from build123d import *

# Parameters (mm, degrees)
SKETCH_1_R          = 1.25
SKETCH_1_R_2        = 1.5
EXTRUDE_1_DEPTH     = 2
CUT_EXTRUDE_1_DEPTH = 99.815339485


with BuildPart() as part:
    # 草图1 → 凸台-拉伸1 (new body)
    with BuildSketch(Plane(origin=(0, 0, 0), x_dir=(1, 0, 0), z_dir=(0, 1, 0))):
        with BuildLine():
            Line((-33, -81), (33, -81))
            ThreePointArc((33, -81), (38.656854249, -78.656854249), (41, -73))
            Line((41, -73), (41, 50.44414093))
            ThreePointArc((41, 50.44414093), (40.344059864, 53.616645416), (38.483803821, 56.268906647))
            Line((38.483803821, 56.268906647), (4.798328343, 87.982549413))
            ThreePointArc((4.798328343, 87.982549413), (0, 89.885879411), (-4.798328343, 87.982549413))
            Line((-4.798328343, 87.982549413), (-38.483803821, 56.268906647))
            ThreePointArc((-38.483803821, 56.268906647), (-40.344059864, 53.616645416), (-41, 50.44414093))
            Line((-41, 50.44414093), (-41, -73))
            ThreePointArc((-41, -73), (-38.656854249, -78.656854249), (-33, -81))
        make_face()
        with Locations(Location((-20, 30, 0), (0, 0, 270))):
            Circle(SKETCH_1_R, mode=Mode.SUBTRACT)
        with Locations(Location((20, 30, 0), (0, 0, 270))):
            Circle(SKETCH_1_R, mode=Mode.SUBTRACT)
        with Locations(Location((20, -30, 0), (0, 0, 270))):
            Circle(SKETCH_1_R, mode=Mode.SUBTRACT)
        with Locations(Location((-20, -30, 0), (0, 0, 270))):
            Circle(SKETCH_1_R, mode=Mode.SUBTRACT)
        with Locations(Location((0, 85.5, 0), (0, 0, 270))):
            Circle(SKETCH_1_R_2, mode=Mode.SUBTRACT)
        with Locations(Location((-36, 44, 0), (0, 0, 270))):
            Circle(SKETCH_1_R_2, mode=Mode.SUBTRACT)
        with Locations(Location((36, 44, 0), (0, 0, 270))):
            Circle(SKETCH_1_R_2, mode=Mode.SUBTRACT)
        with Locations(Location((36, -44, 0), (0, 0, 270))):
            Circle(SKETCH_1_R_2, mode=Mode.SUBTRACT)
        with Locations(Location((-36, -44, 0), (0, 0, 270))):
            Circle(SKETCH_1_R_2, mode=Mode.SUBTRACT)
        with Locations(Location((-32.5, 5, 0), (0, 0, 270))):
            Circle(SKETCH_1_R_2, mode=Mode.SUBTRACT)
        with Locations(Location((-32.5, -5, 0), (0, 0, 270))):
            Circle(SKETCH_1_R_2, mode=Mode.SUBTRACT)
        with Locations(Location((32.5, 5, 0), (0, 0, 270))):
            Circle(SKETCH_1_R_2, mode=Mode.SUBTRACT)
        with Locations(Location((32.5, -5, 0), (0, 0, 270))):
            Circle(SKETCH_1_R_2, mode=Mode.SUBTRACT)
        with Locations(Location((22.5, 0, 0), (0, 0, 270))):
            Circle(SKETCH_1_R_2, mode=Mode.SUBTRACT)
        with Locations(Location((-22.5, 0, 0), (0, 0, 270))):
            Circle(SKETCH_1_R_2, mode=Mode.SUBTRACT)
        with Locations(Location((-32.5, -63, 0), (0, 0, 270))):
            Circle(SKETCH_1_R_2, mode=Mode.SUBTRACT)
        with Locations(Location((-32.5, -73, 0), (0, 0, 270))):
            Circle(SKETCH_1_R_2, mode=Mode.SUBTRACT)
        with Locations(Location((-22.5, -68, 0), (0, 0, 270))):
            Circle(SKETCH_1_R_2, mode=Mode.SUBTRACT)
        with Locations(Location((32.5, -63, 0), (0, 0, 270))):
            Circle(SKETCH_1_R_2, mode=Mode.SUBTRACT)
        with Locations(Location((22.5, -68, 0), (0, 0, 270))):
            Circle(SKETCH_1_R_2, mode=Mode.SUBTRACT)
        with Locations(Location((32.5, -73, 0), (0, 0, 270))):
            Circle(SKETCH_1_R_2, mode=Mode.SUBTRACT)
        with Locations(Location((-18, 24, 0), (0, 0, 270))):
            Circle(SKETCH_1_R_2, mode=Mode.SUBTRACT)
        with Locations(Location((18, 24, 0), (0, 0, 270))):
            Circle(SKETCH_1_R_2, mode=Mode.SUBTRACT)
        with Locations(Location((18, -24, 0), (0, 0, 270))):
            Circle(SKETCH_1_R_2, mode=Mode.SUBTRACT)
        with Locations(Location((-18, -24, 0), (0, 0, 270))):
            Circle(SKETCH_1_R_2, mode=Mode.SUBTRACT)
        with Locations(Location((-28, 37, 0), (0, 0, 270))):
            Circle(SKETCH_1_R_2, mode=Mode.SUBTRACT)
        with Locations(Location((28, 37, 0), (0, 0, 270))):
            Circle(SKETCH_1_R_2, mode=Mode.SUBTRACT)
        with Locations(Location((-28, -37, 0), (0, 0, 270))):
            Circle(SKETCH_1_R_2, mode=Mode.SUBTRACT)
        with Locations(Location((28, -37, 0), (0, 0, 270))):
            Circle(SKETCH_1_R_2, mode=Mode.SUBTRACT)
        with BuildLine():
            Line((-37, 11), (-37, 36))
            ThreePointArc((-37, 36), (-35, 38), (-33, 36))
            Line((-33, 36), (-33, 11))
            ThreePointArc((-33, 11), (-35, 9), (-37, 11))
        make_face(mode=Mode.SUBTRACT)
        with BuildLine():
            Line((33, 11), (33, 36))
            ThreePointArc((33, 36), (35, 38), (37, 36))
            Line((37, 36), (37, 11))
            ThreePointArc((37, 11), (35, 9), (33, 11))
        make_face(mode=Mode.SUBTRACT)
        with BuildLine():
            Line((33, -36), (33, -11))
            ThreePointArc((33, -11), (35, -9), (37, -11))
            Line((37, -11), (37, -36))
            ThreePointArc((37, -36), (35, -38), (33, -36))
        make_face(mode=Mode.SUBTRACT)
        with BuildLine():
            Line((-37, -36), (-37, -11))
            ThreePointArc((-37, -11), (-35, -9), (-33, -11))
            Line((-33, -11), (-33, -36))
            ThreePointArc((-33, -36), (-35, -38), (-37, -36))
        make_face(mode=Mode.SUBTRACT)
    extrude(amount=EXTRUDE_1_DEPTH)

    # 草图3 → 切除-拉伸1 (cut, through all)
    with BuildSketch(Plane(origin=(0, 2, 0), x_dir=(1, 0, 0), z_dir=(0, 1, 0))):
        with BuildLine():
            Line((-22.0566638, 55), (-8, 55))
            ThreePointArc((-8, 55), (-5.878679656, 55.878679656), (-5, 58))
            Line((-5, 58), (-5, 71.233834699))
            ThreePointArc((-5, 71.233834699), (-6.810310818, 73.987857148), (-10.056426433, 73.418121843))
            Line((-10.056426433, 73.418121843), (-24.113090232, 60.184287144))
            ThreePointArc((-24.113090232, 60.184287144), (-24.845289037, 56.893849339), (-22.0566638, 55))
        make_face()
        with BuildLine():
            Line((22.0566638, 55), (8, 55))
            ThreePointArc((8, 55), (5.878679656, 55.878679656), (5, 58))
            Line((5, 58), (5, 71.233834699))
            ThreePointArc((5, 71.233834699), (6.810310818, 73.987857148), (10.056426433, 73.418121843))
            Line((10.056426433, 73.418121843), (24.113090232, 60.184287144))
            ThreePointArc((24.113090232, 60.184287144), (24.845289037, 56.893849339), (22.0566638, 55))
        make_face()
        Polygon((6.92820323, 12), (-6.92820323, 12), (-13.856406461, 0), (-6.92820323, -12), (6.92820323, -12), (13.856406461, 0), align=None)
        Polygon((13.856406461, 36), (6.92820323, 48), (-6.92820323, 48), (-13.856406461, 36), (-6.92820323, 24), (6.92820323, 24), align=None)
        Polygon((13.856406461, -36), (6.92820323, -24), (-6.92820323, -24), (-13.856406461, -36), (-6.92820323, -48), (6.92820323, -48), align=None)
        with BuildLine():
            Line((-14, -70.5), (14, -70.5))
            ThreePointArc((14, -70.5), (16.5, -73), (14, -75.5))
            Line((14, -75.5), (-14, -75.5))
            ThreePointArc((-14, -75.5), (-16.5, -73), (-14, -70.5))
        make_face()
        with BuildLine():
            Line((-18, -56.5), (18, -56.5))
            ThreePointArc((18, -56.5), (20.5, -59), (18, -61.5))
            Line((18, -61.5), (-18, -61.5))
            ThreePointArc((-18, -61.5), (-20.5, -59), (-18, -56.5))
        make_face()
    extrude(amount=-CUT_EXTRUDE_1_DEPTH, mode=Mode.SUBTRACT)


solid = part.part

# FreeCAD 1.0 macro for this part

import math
import FreeCAD as App
import Part
import Sketcher
from FreeCAD import Vector
Q = App.Units.Quantity


def add_polygon(sketch, points):
    """Adds a closed chain of lines whose ends are joined by coincident constraints."""
    first, n = sketch.GeometryCount, len(points)
    for a, b in zip(points, points[1:] + points[:1]):
        sketch.addGeometry(Part.LineSegment(App.Vector(*a, 0), App.Vector(*b, 0)), False)
    for i in range(n):
        sketch.addConstraint(Sketcher.Constraint("Coincident", first + i, 2, first + (i + 1) % n, 1))

doc = App.newDocument("Part")
body = doc.addObject("PartDesign::Body", "Body")

sketch1 = body.newObject("Sketcher::SketchObject", "Sketch")
sketch1.AttachmentSupport = (doc.getObject("XZ_Plane"), [""])
sketch1.MapMode = "FlatFace"
sketch1.addGeometry([
    Part.LineSegment(Vector(-33, 81, 0), Vector(33, 81, 0)),
    Part.ArcOfCircle(Part.Circle(Vector(33, 73, 0), Vector(0, 0, 1), 8), math.radians(0), math.radians(90)),
    Part.LineSegment(Vector(41, 73, 0), Vector(41, -50.4, 0)),
    Part.ArcOfCircle(Part.Circle(Vector(33, -50.4, 0), Vector(0, 0, 1), 8), math.radians(-47), math.radians(0)),
    Part.LineSegment(Vector(38.5, -56.3, 0), Vector(4.8, -88, 0)),
    Part.ArcOfCircle(Part.Circle(Vector(0, -82.9, 0), Vector(0, 0, 1), 7), math.radians(-133), math.radians(-47)),
    Part.LineSegment(Vector(-4.8, -88, 0), Vector(-38.5, -56.3, 0)),
    Part.ArcOfCircle(Part.Circle(Vector(-33, -50.4, 0), Vector(0, 0, 1), 8), math.radians(180), math.radians(227)),
    Part.LineSegment(Vector(-41, -50.4, 0), Vector(-41, 73, 0)),
    Part.ArcOfCircle(Part.Circle(Vector(-33, 73, 0), Vector(0, 0, 1), 8), math.radians(90), math.radians(180)),
    Part.Circle(Vector(-32.5, 73, 0), Vector(0, 0, 1), 1.5),
    Part.Circle(Vector(-32.5, 63, 0), Vector(0, 0, 1), 1.5),
    Part.Circle(Vector(-22.5, 68, 0), Vector(0, 0, 1), 1.5),
    Part.Circle(Vector(-36, 44, 0), Vector(0, 0, 1), 1.5),
    Part.Circle(Vector(-28, 37, 0), Vector(0, 0, 1), 1.5),
    Part.ArcOfCircle(Part.Circle(Vector(-35, 36, 0), Vector(0, 0, 1), 2), math.radians(0), math.radians(180)),
    Part.LineSegment(Vector(-37, 36, 0), Vector(-37, 11, 0)),
    Part.ArcOfCircle(Part.Circle(Vector(-35, 11, 0), Vector(0, 0, 1), 2), math.radians(180), math.radians(360)),
    Part.LineSegment(Vector(-33, 11, 0), Vector(-33, 36, 0)),
    Part.Circle(Vector(-20, 30, 0), Vector(0, 0, 1), 1.2),
    Part.Circle(Vector(-32.5, 5, 0), Vector(0, 0, 1), 1.5),
    Part.Circle(Vector(-32.5, -5, 0), Vector(0, 0, 1), 1.5),
    Part.Circle(Vector(-22.5, 0, 0), Vector(0, 0, 1), 1.5),
    Part.Circle(Vector(-18, 24, 0), Vector(0, 0, 1), 1.5),
    Part.Circle(Vector(22.5, 68, 0), Vector(0, 0, 1), 1.5),
    Part.Circle(Vector(32.5, 73, 0), Vector(0, 0, 1), 1.5),
    Part.Circle(Vector(32.5, 63, 0), Vector(0, 0, 1), 1.5),
    Part.Circle(Vector(28, 37, 0), Vector(0, 0, 1), 1.5),
    Part.Circle(Vector(36, 44, 0), Vector(0, 0, 1), 1.5),
    Part.Circle(Vector(18, 24, 0), Vector(0, 0, 1), 1.5),
    Part.Circle(Vector(20, 30, 0), Vector(0, 0, 1), 1.2),
    Part.ArcOfCircle(Part.Circle(Vector(35, 36, 0), Vector(0, 0, 1), 2), math.radians(0), math.radians(180)),
    Part.LineSegment(Vector(33, 36, 0), Vector(33, 11, 0)),
    Part.ArcOfCircle(Part.Circle(Vector(35, 11, 0), Vector(0, 0, 1), 2), math.radians(180), math.radians(360)),
    Part.LineSegment(Vector(37, 11, 0), Vector(37, 36, 0)),
    Part.Circle(Vector(22.5, 0, 0), Vector(0, 0, 1), 1.5),
    Part.Circle(Vector(32.5, 5, 0), Vector(0, 0, 1), 1.5),
    Part.Circle(Vector(32.5, -5, 0), Vector(0, 0, 1), 1.5),
    Part.ArcOfCircle(Part.Circle(Vector(-35, -11, 0), Vector(0, 0, 1), 2), math.radians(0), math.radians(180)),
    Part.LineSegment(Vector(-37, -11, 0), Vector(-37, -36, 0)),
    Part.ArcOfCircle(Part.Circle(Vector(-35, -36, 0), Vector(0, 0, 1), 2), math.radians(180), math.radians(360)),
    Part.LineSegment(Vector(-33, -36, 0), Vector(-33, -11, 0)),
    Part.Circle(Vector(-36, -44, 0), Vector(0, 0, 1), 1.5),
    Part.Circle(Vector(-20, -30, 0), Vector(0, 0, 1), 1.2),
    Part.Circle(Vector(-28, -37, 0), Vector(0, 0, 1), 1.5),
    Part.Circle(Vector(-18, -24, 0), Vector(0, 0, 1), 1.5),
    Part.Circle(Vector(18, -24, 0), Vector(0, 0, 1), 1.5),
    Part.ArcOfCircle(Part.Circle(Vector(35, -11, 0), Vector(0, 0, 1), 2), math.radians(0), math.radians(180)),
    Part.LineSegment(Vector(33, -11, 0), Vector(33, -36, 0)),
    Part.ArcOfCircle(Part.Circle(Vector(35, -36, 0), Vector(0, 0, 1), 2), math.radians(180), math.radians(360)),
    Part.LineSegment(Vector(37, -36, 0), Vector(37, -11, 0)),
    Part.Circle(Vector(20, -30, 0), Vector(0, 0, 1), 1.2),
    Part.Circle(Vector(28, -37, 0), Vector(0, 0, 1), 1.5),
    Part.Circle(Vector(36, -44, 0), Vector(0, 0, 1), 1.5),
    Part.Circle(Vector(0, -85.5, 0), Vector(0, 0, 1), 1.5),
], False)
sketch1.addConstraint([
    Sketcher.Constraint("Tangent", 0, 2, 1, 2),
    Sketcher.Constraint("Tangent", 1, 1, 2, 1),
    Sketcher.Constraint("Tangent", 2, 2, 3, 2),
    Sketcher.Constraint("Tangent", 3, 1, 4, 1),
    Sketcher.Constraint("Tangent", 4, 2, 5, 2),
    Sketcher.Constraint("Tangent", 5, 1, 6, 1),
    Sketcher.Constraint("Tangent", 6, 2, 7, 2),
    Sketcher.Constraint("Tangent", 7, 1, 8, 1),
    Sketcher.Constraint("Tangent", 8, 2, 9, 2),
    Sketcher.Constraint("Tangent", 9, 1, 0, 1),
    Sketcher.Constraint("Tangent", 15, 2, 16, 1),
    Sketcher.Constraint("Tangent", 16, 2, 17, 1),
    Sketcher.Constraint("Tangent", 17, 2, 18, 1),
    Sketcher.Constraint("Tangent", 18, 2, 15, 1),
    Sketcher.Constraint("Tangent", 31, 2, 32, 1),
    Sketcher.Constraint("Tangent", 32, 2, 33, 1),
    Sketcher.Constraint("Tangent", 33, 2, 34, 1),
    Sketcher.Constraint("Tangent", 34, 2, 31, 1),
    Sketcher.Constraint("Tangent", 38, 2, 39, 1),
    Sketcher.Constraint("Tangent", 39, 2, 40, 1),
    Sketcher.Constraint("Tangent", 40, 2, 41, 1),
    Sketcher.Constraint("Tangent", 41, 2, 38, 1),
    Sketcher.Constraint("Tangent", 47, 2, 48, 1),
    Sketcher.Constraint("Tangent", 48, 2, 49, 1),
    Sketcher.Constraint("Tangent", 49, 2, 50, 1),
    Sketcher.Constraint("Tangent", 50, 2, 47, 1),
    Sketcher.Constraint("Horizontal", 0),
    Sketcher.Constraint("Vertical", 2),
    Sketcher.Constraint("Vertical", 8),
    Sketcher.Constraint("Vertical", 16),
    Sketcher.Constraint("Vertical", 18),
    Sketcher.Constraint("Vertical", 32),
    Sketcher.Constraint("Vertical", 34),
    Sketcher.Constraint("Vertical", 39),
    Sketcher.Constraint("Vertical", 41),
    Sketcher.Constraint("Vertical", 48),
    Sketcher.Constraint("Vertical", 50),
    Sketcher.Constraint("Equal", 1, 3),
    Sketcher.Constraint("Equal", 3, 7),
    Sketcher.Constraint("Equal", 7, 9),
    Sketcher.Constraint("Equal", 10, 11),
    Sketcher.Constraint("Equal", 11, 12),
    Sketcher.Constraint("Equal", 12, 13),
    Sketcher.Constraint("Equal", 13, 14),
    Sketcher.Constraint("Equal", 14, 20),
    Sketcher.Constraint("Equal", 20, 21),
    Sketcher.Constraint("Equal", 21, 22),
    Sketcher.Constraint("Equal", 22, 23),
    Sketcher.Constraint("Equal", 23, 24),
    Sketcher.Constraint("Equal", 24, 25),
    Sketcher.Constraint("Equal", 25, 26),
    Sketcher.Constraint("Equal", 26, 27),
    Sketcher.Constraint("Equal", 27, 28),
    Sketcher.Constraint("Equal", 28, 29),
    Sketcher.Constraint("Equal", 19, 30),
    Sketcher.Constraint("Equal", 17, 31),
    Sketcher.Constraint("Equal", 29, 35),
    Sketcher.Constraint("Equal", 35, 36),
    Sketcher.Constraint("Equal", 36, 37),
    Sketcher.Constraint("Equal", 33, 38),
    Sketcher.Constraint("Equal", 37, 42),
    Sketcher.Constraint("Equal", 30, 43),
    Sketcher.Constraint("Equal", 42, 44),
    Sketcher.Constraint("Equal", 44, 45),
    Sketcher.Constraint("Equal", 45, 46),
    Sketcher.Constraint("Equal", 40, 47),
    Sketcher.Constraint("Equal", 43, 51),
    Sketcher.Constraint("Equal", 46, 52),
    Sketcher.Constraint("Equal", 52, 53),
    Sketcher.Constraint("Equal", 53, 54),
    Sketcher.Constraint("Symmetric", 22, 3, 35, 3, -1, 1),
    Sketcher.Constraint("Symmetric", 21, 3, 36, 3, -1, 1),
    Sketcher.Constraint("Symmetric", 20, 3, 37, 3, -1, 1),
    Sketcher.Constraint("Symmetric", 33, 3, 38, 3, -1, 1),
    Sketcher.Constraint("Symmetric", 28, 3, 42, 3, -1, 1),
    Sketcher.Constraint("Symmetric", 30, 3, 43, 3, -1, 1),
    Sketcher.Constraint("Symmetric", 27, 3, 44, 3, -1, 1),
    Sketcher.Constraint("Symmetric", 29, 3, 45, 3, -1, 1),
    Sketcher.Constraint("Symmetric", 23, 3, 46, 3, -1, 1),
    Sketcher.Constraint("Symmetric", 17, 3, 47, 3, -1, 1),
    Sketcher.Constraint("Symmetric", 19, 3, 51, 3, -1, 1),
    Sketcher.Constraint("Symmetric", 14, 3, 52, 3, -1, 1),
    Sketcher.Constraint("Symmetric", 13, 3, 53, 3, -1, 1),
    Sketcher.Constraint("Symmetric", 3, 3, 7, 3, -2),
    Sketcher.Constraint("Symmetric", 12, 3, 24, 3, -2),
    Sketcher.Constraint("Symmetric", 10, 3, 25, 3, -2),
    Sketcher.Constraint("Symmetric", 11, 3, 26, 3, -2),
    Sketcher.Constraint("Symmetric", 14, 3, 27, 3, -2),
    Sketcher.Constraint("Symmetric", 13, 3, 28, 3, -2),
    Sketcher.Constraint("Symmetric", 23, 3, 29, 3, -2),
    Sketcher.Constraint("Symmetric", 19, 3, 30, 3, -2),
    Sketcher.Constraint("Symmetric", 15, 3, 31, 3, -2),
    Sketcher.Constraint("Symmetric", 20, 3, 36, 3, -2),
    Sketcher.Constraint("PointOnObject", 5, 3, -2),
    Sketcher.Constraint("PointOnObject", 22, 3, -1),
    Sketcher.Constraint("PointOnObject", 54, 3, -2),
    Sketcher.Constraint("Horizontal", 9, 3, 10, 3),
    Sketcher.Constraint("Horizontal", 17, 3, 33, 3),
    Sketcher.Constraint("Horizontal", 40, 3, 49, 3),
    Sketcher.Constraint("Vertical", 10, 3, 11, 3),
    Sketcher.Constraint("Vertical", 11, 3, 20, 3),
    Sketcher.Constraint("Vertical", 12, 3, 22, 3),
    Sketcher.Constraint("Vertical", 9, 1, 17, 2),
    Sketcher.Constraint("Equal", 34, 39),
    Sketcher.Constraint("Diameter", 10, Q("3 mm")),
    Sketcher.Constraint("Radius", 1, Q("8 mm")),
    Sketcher.Constraint("Radius", 5, Q("7 mm")),
    Sketcher.Constraint("Radius", 15, Q("2 mm")),
    Sketcher.Constraint("Diameter", 19, Q("2.5 mm")),
    Sketcher.Constraint("DistanceX", 0, 1, 0, 2, Q("66 mm")),
    Sketcher.Constraint("DistanceY", 16, 2, 16, 1, Q("25 mm")),
    Sketcher.Constraint("DistanceY", -1, 1, 1, 3, Q("73 mm")),
    Sketcher.Constraint("DistanceY", -1, 1, 11, 3, Q("63 mm")),
    Sketcher.Constraint("DistanceY", -1, 1, 12, 3, Q("68 mm")),
    Sketcher.Constraint("DistanceX", 13, 3, -1, 1, Q("36 mm")),
    Sketcher.Constraint("DistanceY", -1, 1, 13, 3, Q("44 mm")),
    Sketcher.Constraint("DistanceX", 14, 3, -1, 1, Q("28 mm")),
    Sketcher.Constraint("DistanceY", -1, 1, 14, 3, Q("37 mm")),
    Sketcher.Constraint("DistanceY", -1, 1, 15, 3, Q("36 mm")),
    Sketcher.Constraint("DistanceX", 19, 3, -1, 1, Q("20 mm")),
    Sketcher.Constraint("DistanceY", -1, 1, 19, 3, Q("30 mm")),
    Sketcher.Constraint("DistanceY", -1, 1, 20, 3, Q("5 mm")),
    Sketcher.Constraint("DistanceX", 23, 3, -1, 1, Q("18 mm")),
    Sketcher.Constraint("DistanceY", -1, 1, 23, 3, Q("24 mm")),
    Sketcher.Constraint("DistanceX", 10, 3, -1, 1, Q("32.5 mm")),
    Sketcher.Constraint("DistanceX", 12, 3, -1, 1, Q("22.5 mm")),
    Sketcher.Constraint("DistanceY", 54, 3, -1, 1, Q("85.5 mm")),
    Sketcher.Constraint("DistanceY", 2, 2, 2, 1, Q("123.444141 mm")),
    Sketcher.Constraint("DistanceY", 5, 3, -1, 1, Q("82.885879 mm")),
])
pad1 = body.newObject("PartDesign::Pad", "Pad")
pad1.Profile = sketch1
pad1.Length = 2
pad1.Reversed = True

sketch2 = body.newObject("Sketcher::SketchObject", "Sketch001")
sketch2.AttachmentSupport = (doc.getObject("XZ_Plane"), [""])
sketch2.MapMode = "FlatFace"
sketch2.AttachmentOffset = App.Placement(Vector(0, 0, -2), App.Rotation())
sketch2.addGeometry(Part.LineSegment(Vector(-22.1, -55, 0), Vector(-8, -55, 0)), False)
sketch2.addGeometry(Part.ArcOfCircle(Part.Circle(Vector(-8, -58, 0), Vector(0, 0, 1), 3), math.radians(0), math.radians(90)), False)
sketch2.addGeometry(Part.LineSegment(Vector(-5, -58, 0), Vector(-5, -71.2, 0)), False)
sketch2.addGeometry(Part.ArcOfCircle(Part.Circle(Vector(-8, -71.2, 0), Vector(0, 0, 1), 3), math.radians(-133), math.radians(0)), False)
sketch2.addGeometry(Part.LineSegment(Vector(-10.1, -73.4, 0), Vector(-24.1, -60.2, 0)), False)
sketch2.addGeometry(Part.ArcOfCircle(Part.Circle(Vector(-22.1, -58, 0), Vector(0, 0, 1), 3), math.radians(90), math.radians(227)), False)
sketch2.addGeometry(Part.LineSegment(Vector(8, -55, 0), Vector(22.1, -55, 0)), False)
sketch2.addGeometry(Part.ArcOfCircle(Part.Circle(Vector(22.1, -58, 0), Vector(0, 0, 1), 3), math.radians(-47), math.radians(90)), False)
sketch2.addGeometry(Part.LineSegment(Vector(24.1, -60.2, 0), Vector(10.1, -73.4, 0)), False)
sketch2.addGeometry(Part.ArcOfCircle(Part.Circle(Vector(8, -71.2, 0), Vector(0, 0, 1), 3), math.radians(180), math.radians(313)), False)
sketch2.addGeometry(Part.LineSegment(Vector(5, -71.2, 0), Vector(5, -58, 0)), False)
sketch2.addGeometry(Part.ArcOfCircle(Part.Circle(Vector(8, -58, 0), Vector(0, 0, 1), 3), math.radians(90), math.radians(180)), False)
add_polygon(sketch2, [(6.9, -12), (-6.9, -12), (-13.9, 0), (-6.9, 12), (6.9, 12), (13.9, 0)])
add_polygon(sketch2, [(13.9, -36), (6.9, -48), (-6.9, -48), (-13.9, -36), (-6.9, -24), (6.9, -24)])
add_polygon(sketch2, [(13.9, 36), (6.9, 24), (-6.9, 24), (-13.9, 36), (-6.9, 48), (6.9, 48)])
sketch2.addGeometry(Part.LineSegment(Vector(14, 70.5, 0), Vector(-14, 70.5, 0)), False)
sketch2.addGeometry(Part.ArcOfCircle(Part.Circle(Vector(-14, 73, 0), Vector(0, 0, 1), 2.5), math.radians(90), math.radians(270)), False)
sketch2.addGeometry(Part.LineSegment(Vector(-14, 75.5, 0), Vector(14, 75.5, 0)), False)
sketch2.addGeometry(Part.ArcOfCircle(Part.Circle(Vector(14, 73, 0), Vector(0, 0, 1), 2.5), math.radians(-90), math.radians(90)), False)
sketch2.addGeometry(Part.LineSegment(Vector(18, 56.5, 0), Vector(-18, 56.5, 0)), False)
sketch2.addGeometry(Part.ArcOfCircle(Part.Circle(Vector(-18, 59, 0), Vector(0, 0, 1), 2.5), math.radians(90), math.radians(270)), False)
sketch2.addGeometry(Part.LineSegment(Vector(-18, 61.5, 0), Vector(18, 61.5, 0)), False)
sketch2.addGeometry(Part.ArcOfCircle(Part.Circle(Vector(18, 59, 0), Vector(0, 0, 1), 2.5), math.radians(-90), math.radians(90)), False)
sketch2.addConstraint([
    Sketcher.Constraint("Tangent", 0, 2, 1, 2),
    Sketcher.Constraint("Tangent", 1, 1, 2, 1),
    Sketcher.Constraint("Tangent", 2, 2, 3, 2),
    Sketcher.Constraint("Tangent", 3, 1, 4, 1),
    Sketcher.Constraint("Tangent", 4, 2, 5, 2),
    Sketcher.Constraint("Tangent", 5, 1, 0, 1),
    Sketcher.Constraint("Tangent", 6, 2, 7, 2),
    Sketcher.Constraint("Tangent", 7, 1, 8, 1),
    Sketcher.Constraint("Tangent", 8, 2, 9, 2),
    Sketcher.Constraint("Tangent", 9, 1, 10, 1),
    Sketcher.Constraint("Tangent", 10, 2, 11, 2),
    Sketcher.Constraint("Tangent", 11, 1, 6, 1),
    Sketcher.Constraint("Tangent", 30, 2, 31, 2),
    Sketcher.Constraint("Tangent", 31, 1, 32, 1),
    Sketcher.Constraint("Tangent", 32, 2, 33, 2),
    Sketcher.Constraint("Tangent", 33, 1, 30, 1),
    Sketcher.Constraint("Tangent", 34, 2, 35, 2),
    Sketcher.Constraint("Tangent", 35, 1, 36, 1),
    Sketcher.Constraint("Tangent", 36, 2, 37, 2),
    Sketcher.Constraint("Tangent", 37, 1, 34, 1),
    Sketcher.Constraint("Horizontal", 0),
    Sketcher.Constraint("Vertical", 2),
    Sketcher.Constraint("Horizontal", 6),
    Sketcher.Constraint("Vertical", 10),
    Sketcher.Constraint("Horizontal", 12),
    Sketcher.Constraint("Horizontal", 15),
    Sketcher.Constraint("Horizontal", 19),
    Sketcher.Constraint("Horizontal", 22),
    Sketcher.Constraint("Horizontal", 25),
    Sketcher.Constraint("Horizontal", 28),
    Sketcher.Constraint("Horizontal", 30),
    Sketcher.Constraint("Horizontal", 32),
    Sketcher.Constraint("Horizontal", 34),
    Sketcher.Constraint("Horizontal", 36),
    Sketcher.Constraint("Equal", 1, 3),
    Sketcher.Constraint("Equal", 3, 5),
    Sketcher.Constraint("Equal", 5, 7),
    Sketcher.Constraint("Equal", 7, 9),
    Sketcher.Constraint("Equal", 9, 11),
    Sketcher.Constraint("Equal", 33, 35),
    Sketcher.Constraint("Symmetric", 12, 2, 15, 2, -1, 1),
    Sketcher.Constraint("Symmetric", 13, 2, 16, 2, -1, 1),
    Sketcher.Constraint("Symmetric", 21, 2, 24, 2, -1, 1),
    Sketcher.Constraint("Symmetric", 23, 2, 26, 2, -1, 1),
    Sketcher.Constraint("Symmetric", 18, 2, 27, 2, -1, 1),
    Sketcher.Constraint("Symmetric", 20, 2, 29, 2, -1, 1),
    Sketcher.Constraint("Symmetric", 5, 3, 7, 3, -2),
    Sketcher.Constraint("Symmetric", 3, 3, 9, 3, -2),
    Sketcher.Constraint("Symmetric", 20, 2, 23, 2, -2),
    Sketcher.Constraint("PointOnObject", 13, 2, -1),
    Sketcher.Constraint("Parallel", 14, 17),
    Sketcher.Constraint("Parallel", 17, 18),
    Sketcher.Constraint("Parallel", 16, 20),
    Sketcher.Constraint("Parallel", 18, 21),
    Sketcher.Constraint("Parallel", 20, 23),
    Sketcher.Constraint("Parallel", 23, 26),
    Sketcher.Constraint("Parallel", 26, 29),
    Sketcher.Constraint("Vertical", 12, 2, 14, 2),
    Sketcher.Constraint("Vertical", 17, 2, 18, 2),
    Sketcher.Constraint("Vertical", 13, 2, 20, 2),
    Sketcher.Constraint("Vertical", 19, 2, 21, 2),
    Sketcher.Constraint("Radius", 1, Q("3 mm")),
    Sketcher.Constraint("Radius", 31, Q("2.5 mm")),
    Sketcher.Constraint("DistanceX", 30, 2, 30, 1, Q("28 mm")),
    Sketcher.Constraint("DistanceX", 34, 2, 34, 1, Q("36 mm")),
    Sketcher.Constraint("Angle", 13, Q("120 deg")),
    Sketcher.Constraint("DistanceX", 1, 3, -1, 1, Q("8 mm")),
    Sketcher.Constraint("DistanceY", 1, 3, -1, 1, Q("58 mm")),
    Sketcher.Constraint("DistanceX", 31, 3, -1, 1, Q("14 mm")),
    Sketcher.Constraint("DistanceY", -1, 1, 31, 3, Q("73 mm")),
    Sketcher.Constraint("DistanceX", 35, 3, -1, 1, Q("18 mm")),
    Sketcher.Constraint("DistanceY", -1, 1, 35, 3, Q("59 mm")),
    Sketcher.Constraint("DistanceY", 12, 2, -1, 1, Q("12 mm")),
    Sketcher.Constraint("DistanceY", 18, 2, -1, 1, Q("48 mm")),
    Sketcher.Constraint("DistanceX", 0, 1, 0, 2, Q("14.056664 mm")),
    Sketcher.Constraint("DistanceX", 12, 2, 12, 1, Q("13.856406 mm")),
    Sketcher.Constraint("DistanceY", 2, 2, 2, 1, Q("13.233835 mm")),
])
pocket1 = body.newObject("PartDesign::Pocket", "Pocket")
pocket1.Profile = sketch2
pocket1.Type = "ThroughAll"
pocket1.Reversed = True

doc.recompute()
